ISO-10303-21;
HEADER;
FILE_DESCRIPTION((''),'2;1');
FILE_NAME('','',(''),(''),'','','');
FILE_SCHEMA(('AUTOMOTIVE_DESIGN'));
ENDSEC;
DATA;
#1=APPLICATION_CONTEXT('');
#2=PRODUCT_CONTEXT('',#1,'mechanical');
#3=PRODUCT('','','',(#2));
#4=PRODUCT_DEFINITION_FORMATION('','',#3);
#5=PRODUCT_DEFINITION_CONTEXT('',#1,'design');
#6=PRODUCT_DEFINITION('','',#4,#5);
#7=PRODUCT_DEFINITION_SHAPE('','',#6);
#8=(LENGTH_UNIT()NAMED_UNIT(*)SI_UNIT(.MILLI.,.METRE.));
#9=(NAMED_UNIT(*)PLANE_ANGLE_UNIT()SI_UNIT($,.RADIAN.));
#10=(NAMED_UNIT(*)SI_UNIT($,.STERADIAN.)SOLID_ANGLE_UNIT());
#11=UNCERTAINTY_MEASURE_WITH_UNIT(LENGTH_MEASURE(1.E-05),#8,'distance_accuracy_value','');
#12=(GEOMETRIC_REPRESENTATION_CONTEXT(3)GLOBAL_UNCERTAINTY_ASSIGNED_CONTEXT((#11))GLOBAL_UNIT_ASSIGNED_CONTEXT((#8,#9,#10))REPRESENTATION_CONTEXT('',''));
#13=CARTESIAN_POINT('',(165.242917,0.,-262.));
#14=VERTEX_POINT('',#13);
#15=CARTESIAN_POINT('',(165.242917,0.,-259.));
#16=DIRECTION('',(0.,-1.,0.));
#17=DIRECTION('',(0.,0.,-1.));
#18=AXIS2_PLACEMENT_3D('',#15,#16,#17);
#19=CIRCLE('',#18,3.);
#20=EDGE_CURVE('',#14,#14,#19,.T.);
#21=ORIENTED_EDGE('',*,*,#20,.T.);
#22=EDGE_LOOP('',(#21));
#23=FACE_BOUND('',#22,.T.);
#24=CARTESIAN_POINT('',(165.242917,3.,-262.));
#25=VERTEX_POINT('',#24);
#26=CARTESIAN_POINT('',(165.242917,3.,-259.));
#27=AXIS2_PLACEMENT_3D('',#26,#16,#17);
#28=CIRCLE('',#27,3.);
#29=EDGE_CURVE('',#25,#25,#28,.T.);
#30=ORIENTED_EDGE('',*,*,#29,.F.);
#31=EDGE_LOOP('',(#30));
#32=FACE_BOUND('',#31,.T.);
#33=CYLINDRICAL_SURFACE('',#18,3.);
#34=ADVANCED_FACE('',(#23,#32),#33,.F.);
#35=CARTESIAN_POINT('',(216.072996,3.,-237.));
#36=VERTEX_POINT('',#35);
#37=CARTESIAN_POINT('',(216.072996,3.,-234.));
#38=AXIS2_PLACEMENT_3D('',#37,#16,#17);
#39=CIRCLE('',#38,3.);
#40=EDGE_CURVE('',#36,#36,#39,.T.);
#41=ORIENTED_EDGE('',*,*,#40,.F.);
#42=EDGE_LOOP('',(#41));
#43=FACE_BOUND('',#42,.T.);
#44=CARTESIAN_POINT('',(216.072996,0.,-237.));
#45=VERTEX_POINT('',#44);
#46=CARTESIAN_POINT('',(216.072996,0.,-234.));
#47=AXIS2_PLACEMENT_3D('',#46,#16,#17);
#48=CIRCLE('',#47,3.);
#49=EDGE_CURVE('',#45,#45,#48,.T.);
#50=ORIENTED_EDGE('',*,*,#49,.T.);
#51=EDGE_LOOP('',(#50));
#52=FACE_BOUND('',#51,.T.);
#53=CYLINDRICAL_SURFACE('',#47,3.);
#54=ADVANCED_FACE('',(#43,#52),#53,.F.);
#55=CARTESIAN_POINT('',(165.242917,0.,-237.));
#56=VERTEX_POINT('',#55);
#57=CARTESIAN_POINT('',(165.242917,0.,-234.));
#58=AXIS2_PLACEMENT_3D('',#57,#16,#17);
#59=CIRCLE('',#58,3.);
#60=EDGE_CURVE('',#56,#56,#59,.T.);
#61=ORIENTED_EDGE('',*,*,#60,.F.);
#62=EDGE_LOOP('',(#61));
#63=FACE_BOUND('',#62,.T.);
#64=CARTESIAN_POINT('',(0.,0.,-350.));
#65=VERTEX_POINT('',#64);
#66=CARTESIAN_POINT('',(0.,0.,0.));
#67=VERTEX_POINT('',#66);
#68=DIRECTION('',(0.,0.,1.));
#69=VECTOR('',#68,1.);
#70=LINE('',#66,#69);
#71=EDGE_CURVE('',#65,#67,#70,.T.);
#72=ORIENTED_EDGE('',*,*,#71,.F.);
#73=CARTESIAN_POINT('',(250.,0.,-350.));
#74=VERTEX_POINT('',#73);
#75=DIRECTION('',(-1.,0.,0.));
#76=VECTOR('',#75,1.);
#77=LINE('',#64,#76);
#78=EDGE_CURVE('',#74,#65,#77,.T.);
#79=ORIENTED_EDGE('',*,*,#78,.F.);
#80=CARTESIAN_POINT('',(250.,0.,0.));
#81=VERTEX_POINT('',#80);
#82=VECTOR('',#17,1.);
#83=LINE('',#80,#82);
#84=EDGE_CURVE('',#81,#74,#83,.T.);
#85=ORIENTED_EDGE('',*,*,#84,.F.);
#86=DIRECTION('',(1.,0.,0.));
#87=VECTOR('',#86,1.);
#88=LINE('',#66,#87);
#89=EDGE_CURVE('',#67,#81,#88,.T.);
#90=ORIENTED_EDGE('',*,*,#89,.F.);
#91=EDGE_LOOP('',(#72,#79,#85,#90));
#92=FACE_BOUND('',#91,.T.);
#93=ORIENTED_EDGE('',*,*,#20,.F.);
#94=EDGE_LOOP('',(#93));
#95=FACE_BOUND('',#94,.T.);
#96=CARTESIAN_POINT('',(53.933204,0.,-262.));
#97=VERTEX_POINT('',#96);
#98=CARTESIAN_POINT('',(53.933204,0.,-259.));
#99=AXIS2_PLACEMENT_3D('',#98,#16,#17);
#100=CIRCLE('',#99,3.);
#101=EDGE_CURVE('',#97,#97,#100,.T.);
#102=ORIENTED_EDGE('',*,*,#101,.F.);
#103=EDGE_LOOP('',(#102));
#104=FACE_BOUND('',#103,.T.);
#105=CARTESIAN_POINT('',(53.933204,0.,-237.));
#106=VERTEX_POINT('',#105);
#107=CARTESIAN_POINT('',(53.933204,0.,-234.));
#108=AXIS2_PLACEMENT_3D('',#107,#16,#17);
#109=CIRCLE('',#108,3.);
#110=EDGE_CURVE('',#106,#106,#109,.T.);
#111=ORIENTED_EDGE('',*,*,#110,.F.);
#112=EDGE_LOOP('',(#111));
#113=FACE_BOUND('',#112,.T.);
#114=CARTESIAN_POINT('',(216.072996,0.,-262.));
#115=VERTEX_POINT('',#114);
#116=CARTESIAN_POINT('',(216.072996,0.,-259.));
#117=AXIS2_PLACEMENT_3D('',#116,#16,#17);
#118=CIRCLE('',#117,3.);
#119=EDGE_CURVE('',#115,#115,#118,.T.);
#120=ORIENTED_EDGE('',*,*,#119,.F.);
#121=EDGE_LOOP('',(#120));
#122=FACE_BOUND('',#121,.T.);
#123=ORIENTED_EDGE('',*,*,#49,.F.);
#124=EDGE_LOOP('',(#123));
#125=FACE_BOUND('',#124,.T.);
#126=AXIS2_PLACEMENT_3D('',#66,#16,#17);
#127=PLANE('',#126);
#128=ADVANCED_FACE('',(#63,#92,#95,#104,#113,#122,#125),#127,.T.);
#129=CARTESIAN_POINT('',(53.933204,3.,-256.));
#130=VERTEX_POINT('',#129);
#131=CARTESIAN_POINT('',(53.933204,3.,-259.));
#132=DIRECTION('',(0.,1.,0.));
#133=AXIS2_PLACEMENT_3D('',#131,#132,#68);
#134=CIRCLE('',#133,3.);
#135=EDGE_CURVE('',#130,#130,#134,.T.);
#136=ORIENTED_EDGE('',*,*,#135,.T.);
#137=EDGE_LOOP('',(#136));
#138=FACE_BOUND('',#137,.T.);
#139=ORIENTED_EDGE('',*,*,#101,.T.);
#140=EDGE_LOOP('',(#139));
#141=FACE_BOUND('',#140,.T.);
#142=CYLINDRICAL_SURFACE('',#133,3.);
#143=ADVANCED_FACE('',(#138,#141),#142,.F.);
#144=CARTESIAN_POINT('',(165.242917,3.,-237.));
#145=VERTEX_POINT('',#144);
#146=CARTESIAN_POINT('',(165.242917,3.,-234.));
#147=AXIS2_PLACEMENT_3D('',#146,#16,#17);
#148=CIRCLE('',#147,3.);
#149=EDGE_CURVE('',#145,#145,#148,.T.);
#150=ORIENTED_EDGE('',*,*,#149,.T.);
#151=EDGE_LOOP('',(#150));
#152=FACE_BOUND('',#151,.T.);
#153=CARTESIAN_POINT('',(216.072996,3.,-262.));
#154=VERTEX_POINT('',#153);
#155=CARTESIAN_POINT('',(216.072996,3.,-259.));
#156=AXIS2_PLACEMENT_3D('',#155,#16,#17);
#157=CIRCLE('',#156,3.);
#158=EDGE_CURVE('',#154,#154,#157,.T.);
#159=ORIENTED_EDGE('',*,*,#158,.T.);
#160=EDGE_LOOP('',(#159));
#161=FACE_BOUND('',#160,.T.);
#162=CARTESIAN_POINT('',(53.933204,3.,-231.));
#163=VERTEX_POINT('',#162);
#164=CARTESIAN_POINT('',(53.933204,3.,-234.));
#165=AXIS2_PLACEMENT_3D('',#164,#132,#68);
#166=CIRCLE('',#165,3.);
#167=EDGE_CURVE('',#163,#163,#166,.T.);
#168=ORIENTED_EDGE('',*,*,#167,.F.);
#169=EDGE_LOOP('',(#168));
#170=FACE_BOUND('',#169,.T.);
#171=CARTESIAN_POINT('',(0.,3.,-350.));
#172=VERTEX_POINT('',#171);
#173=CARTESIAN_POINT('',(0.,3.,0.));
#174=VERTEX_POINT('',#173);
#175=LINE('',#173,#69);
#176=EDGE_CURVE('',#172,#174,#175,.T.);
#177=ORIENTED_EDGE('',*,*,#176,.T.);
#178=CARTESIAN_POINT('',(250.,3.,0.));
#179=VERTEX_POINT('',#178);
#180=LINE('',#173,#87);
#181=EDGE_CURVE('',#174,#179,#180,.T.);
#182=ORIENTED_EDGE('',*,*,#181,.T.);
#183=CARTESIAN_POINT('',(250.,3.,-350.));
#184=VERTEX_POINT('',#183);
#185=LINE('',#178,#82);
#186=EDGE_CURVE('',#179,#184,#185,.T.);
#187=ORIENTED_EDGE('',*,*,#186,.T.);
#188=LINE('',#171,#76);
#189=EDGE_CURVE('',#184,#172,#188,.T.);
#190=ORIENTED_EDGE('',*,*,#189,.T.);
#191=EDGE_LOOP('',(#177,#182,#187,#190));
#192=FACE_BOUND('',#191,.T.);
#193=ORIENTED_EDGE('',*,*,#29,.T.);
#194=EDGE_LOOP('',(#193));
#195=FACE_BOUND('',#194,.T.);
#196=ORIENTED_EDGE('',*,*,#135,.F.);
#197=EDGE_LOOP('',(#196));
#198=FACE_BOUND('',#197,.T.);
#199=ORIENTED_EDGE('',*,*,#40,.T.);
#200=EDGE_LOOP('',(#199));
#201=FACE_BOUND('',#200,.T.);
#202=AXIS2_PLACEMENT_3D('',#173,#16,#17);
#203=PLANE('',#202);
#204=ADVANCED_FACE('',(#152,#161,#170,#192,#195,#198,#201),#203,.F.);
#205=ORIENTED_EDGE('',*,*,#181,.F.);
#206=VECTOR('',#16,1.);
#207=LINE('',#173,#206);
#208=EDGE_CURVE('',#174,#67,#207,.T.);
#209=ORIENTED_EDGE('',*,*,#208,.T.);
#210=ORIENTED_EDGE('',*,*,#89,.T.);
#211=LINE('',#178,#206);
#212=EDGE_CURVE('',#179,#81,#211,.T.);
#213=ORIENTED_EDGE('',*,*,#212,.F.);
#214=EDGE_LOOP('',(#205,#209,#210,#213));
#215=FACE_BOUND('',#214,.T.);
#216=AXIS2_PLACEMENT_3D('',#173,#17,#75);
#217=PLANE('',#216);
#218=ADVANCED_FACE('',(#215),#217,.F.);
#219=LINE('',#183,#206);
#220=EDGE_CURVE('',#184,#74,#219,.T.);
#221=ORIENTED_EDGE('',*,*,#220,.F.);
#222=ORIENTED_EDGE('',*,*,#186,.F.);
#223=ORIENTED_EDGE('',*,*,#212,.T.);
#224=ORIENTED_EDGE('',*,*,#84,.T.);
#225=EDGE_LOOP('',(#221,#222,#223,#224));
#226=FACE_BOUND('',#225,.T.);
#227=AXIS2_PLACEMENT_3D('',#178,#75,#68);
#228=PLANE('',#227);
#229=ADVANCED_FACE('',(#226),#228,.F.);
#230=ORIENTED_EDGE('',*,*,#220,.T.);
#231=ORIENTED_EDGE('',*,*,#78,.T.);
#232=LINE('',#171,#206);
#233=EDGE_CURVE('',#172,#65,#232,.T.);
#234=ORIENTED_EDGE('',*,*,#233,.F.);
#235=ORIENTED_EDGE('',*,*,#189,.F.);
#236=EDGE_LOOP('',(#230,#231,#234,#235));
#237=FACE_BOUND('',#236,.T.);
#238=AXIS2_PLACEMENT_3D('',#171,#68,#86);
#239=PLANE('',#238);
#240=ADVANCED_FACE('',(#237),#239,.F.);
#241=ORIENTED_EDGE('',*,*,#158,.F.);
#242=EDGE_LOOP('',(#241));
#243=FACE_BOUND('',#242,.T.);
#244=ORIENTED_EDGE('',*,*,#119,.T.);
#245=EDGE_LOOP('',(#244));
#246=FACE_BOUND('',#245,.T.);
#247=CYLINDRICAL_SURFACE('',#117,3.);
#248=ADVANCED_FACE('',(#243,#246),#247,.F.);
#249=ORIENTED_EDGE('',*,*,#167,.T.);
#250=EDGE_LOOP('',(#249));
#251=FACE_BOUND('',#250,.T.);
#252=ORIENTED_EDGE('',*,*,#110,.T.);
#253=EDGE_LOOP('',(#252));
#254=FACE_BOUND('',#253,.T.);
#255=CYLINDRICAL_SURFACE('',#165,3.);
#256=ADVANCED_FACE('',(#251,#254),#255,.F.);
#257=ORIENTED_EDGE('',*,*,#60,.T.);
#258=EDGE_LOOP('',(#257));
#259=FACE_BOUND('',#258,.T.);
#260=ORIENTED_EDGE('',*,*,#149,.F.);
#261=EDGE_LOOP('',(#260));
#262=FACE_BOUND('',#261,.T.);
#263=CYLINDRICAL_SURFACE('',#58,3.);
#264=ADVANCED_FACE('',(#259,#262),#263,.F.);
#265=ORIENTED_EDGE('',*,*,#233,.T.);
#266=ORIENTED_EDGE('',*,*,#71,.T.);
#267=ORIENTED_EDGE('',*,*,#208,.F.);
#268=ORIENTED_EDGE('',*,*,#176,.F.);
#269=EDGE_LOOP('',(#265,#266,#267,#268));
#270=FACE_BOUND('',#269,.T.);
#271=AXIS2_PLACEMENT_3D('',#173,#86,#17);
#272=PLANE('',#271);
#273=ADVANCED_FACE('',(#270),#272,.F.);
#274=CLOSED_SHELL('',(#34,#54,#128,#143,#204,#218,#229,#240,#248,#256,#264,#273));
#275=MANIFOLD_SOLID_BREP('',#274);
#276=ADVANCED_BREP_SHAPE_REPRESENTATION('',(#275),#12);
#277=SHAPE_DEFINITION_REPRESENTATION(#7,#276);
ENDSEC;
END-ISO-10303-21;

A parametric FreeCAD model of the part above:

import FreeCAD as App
import Part
import Sketcher
from FreeCAD import Vector
Q = App.Units.Quantity


def add_polygon(sketch, points):
    """Adds a closed chain of lines whose ends are joined by coincident constraints."""
    first, n = sketch.GeometryCount, len(points)
    for a, b in zip(points, points[1:] + points[:1]):
        sketch.addGeometry(Part.LineSegment(App.Vector(*a, 0), App.Vector(*b, 0)), False)
    for i in range(n):
        sketch.addConstraint(Sketcher.Constraint("Coincident", first + i, 2, first + (i + 1) % n, 1))

doc = App.newDocument("Part")
params = doc.addObject("Spreadsheet::Sheet", "Params")
for row, (alias, value) in enumerate([
    ("sketch1_width", "250 mm"),
    ("sketch1_height", "350 mm"),
    ("pad1_length", "3 mm"),
    ("sketch2_diameter", "6 mm"),
    ("hole_diameter", "6 mm"),
    ("hole_depth", "3 mm"),
    ("sketch3_diameter", "6 mm"),
    ("hole2_diameter", "6 mm"),
    ("hole2_depth", "3 mm"),
], start=1):
    params.set(f"A{row}", alias)
    params.set(f"B{row}", "=" + value)
    params.setAlias(f"B{row}", alias)

body = doc.addObject("PartDesign::Body", "Body")

# Sketch on XZ plane
sketch1 = doc.addObject("Sketcher::SketchObject", "Sketch")
body.addObject(sketch1)
sketch1.AttachmentSupport = (doc.XZ_Plane, [""])
sketch1.MapMode = "FlatFace"
add_polygon(sketch1, [(0, -350), (0, 0), (250, 0), (250, -350)])  # lines 0-3
sketch1.addConstraint([
    Sketcher.Constraint("Vertical", 0),
    Sketcher.Constraint("Horizontal", 1),
    Sketcher.Constraint("Vertical", 2),
    Sketcher.Constraint("Horizontal", 3),
    Sketcher.Constraint("Coincident", 0, 2, -1, 1),
    Sketcher.Constraint("DistanceX", 1, 1, 1, 2, Q("250 mm")),
    Sketcher.Constraint("DistanceY", 0, 1, 0, 2, Q("350 mm")),
])
sketch1.setExpression("Constraints[9]", "Params.sketch1_width")
sketch1.setExpression("Constraints[10]", "Params.sketch1_height")
pad1 = doc.addObject("PartDesign::Pad", "Pad")
body.addObject(pad1)
pad1.Profile = sketch1
pad1.setExpression("Length", "Params.pad1_length")
pad1.Reversed = True

# Sketch on XZ plane
sketch2 = doc.addObject("Sketcher::SketchObject", "Sketch001")
body.addObject(sketch2)
sketch2.AttachmentSupport = (doc.XZ_Plane, [""])
sketch2.MapMode = "FlatFace"
sketch2.addGeometry([
    Part.Circle(Vector(165.2, -259, 0), Vector(0, 0, 1), 3),
    Part.Circle(Vector(216.1, -259, 0), Vector(0, 0, 1), 3),
    Part.Circle(Vector(216.1, -234, 0), Vector(0, 0, 1), 3),
    Part.Circle(Vector(165.2, -234, 0), Vector(0, 0, 1), 3),
], False)
sketch2.addConstraint([
    Sketcher.Constraint("Equal", 0, 1),
    Sketcher.Constraint("Equal", 1, 2),
    Sketcher.Constraint("Equal", 2, 3),
    Sketcher.Constraint("Horizontal", 0, 3, 1, 3),
    Sketcher.Constraint("Horizontal", 2, 3, 3, 3),
    Sketcher.Constraint("Vertical", 1, 3, 2, 3),
    Sketcher.Constraint("Vertical", 0, 3, 3, 3),
    Sketcher.Constraint("Diameter", 0, Q("6 mm")),
    Sketcher.Constraint("DistanceY", 0, 3, -1, 1, Q("259 mm")),
    Sketcher.Constraint("DistanceY", 2, 3, -1, 1, Q("234 mm")),
    Sketcher.Constraint("DistanceX", 0, 3, 1, 3, Q("50.830079 mm")),
    Sketcher.Constraint("DistanceX", -1, 1, 0, 3, Q("165.242917 mm")),
])
sketch2.setExpression("Constraints[7]", "Params.sketch2_diameter")
doc.recompute()
hole = doc.addObject("PartDesign::Hole", "Hole")
body.addObject(hole)
hole.Profile = sketch2
hole.ThreadType = "None"
hole.setExpression("Diameter", "Params.hole_diameter")
hole.DepthType = "Dimension"
hole.setExpression("Depth", "Params.hole_depth")
hole.DrillPoint = "Flat"

# Sketch on XZ plane
sketch3 = doc.addObject("Sketcher::SketchObject", "Sketch002")
body.addObject(sketch3)
sketch3.AttachmentSupport = (doc.XZ_Plane, [""])
sketch3.MapMode = "FlatFace"
sketch3.AttachmentOffset = App.Placement(Vector(0, 0, -3), App.Rotation())
sketch3.addGeometry([
    Part.Circle(Vector(53.9, -259, 0), Vector(0, 0, 1), 3),
    Part.Circle(Vector(53.9, -234, 0), Vector(0, 0, 1), 3),
], False)
sketch3.addConstraint([
    Sketcher.Constraint("Equal", 0, 1),
    Sketcher.Constraint("Vertical", 0, 3, 1, 3),
    Sketcher.Constraint("Diameter", 0, Q("6 mm")),
    Sketcher.Constraint("DistanceY", 0, 3, -1, 1, Q("259 mm")),
    Sketcher.Constraint("DistanceY", 1, 3, -1, 1, Q("234 mm")),
    Sketcher.Constraint("DistanceX", -1, 1, 0, 3, Q("53.933204 mm")),
])
sketch3.setExpression("Constraints[2]", "Params.sketch3_diameter")
doc.recompute()
hole2 = doc.addObject("PartDesign::Hole", "Hole001")
body.addObject(hole2)
hole2.Profile = sketch3
hole2.ThreadType = "None"
hole2.setExpression("Diameter", "Params.hole2_diameter")
hole2.DepthType = "Dimension"
hole2.setExpression("Depth", "Params.hole2_depth")
hole2.DrillPoint = "Flat"
hole2.Reversed = True

doc.recompute()
